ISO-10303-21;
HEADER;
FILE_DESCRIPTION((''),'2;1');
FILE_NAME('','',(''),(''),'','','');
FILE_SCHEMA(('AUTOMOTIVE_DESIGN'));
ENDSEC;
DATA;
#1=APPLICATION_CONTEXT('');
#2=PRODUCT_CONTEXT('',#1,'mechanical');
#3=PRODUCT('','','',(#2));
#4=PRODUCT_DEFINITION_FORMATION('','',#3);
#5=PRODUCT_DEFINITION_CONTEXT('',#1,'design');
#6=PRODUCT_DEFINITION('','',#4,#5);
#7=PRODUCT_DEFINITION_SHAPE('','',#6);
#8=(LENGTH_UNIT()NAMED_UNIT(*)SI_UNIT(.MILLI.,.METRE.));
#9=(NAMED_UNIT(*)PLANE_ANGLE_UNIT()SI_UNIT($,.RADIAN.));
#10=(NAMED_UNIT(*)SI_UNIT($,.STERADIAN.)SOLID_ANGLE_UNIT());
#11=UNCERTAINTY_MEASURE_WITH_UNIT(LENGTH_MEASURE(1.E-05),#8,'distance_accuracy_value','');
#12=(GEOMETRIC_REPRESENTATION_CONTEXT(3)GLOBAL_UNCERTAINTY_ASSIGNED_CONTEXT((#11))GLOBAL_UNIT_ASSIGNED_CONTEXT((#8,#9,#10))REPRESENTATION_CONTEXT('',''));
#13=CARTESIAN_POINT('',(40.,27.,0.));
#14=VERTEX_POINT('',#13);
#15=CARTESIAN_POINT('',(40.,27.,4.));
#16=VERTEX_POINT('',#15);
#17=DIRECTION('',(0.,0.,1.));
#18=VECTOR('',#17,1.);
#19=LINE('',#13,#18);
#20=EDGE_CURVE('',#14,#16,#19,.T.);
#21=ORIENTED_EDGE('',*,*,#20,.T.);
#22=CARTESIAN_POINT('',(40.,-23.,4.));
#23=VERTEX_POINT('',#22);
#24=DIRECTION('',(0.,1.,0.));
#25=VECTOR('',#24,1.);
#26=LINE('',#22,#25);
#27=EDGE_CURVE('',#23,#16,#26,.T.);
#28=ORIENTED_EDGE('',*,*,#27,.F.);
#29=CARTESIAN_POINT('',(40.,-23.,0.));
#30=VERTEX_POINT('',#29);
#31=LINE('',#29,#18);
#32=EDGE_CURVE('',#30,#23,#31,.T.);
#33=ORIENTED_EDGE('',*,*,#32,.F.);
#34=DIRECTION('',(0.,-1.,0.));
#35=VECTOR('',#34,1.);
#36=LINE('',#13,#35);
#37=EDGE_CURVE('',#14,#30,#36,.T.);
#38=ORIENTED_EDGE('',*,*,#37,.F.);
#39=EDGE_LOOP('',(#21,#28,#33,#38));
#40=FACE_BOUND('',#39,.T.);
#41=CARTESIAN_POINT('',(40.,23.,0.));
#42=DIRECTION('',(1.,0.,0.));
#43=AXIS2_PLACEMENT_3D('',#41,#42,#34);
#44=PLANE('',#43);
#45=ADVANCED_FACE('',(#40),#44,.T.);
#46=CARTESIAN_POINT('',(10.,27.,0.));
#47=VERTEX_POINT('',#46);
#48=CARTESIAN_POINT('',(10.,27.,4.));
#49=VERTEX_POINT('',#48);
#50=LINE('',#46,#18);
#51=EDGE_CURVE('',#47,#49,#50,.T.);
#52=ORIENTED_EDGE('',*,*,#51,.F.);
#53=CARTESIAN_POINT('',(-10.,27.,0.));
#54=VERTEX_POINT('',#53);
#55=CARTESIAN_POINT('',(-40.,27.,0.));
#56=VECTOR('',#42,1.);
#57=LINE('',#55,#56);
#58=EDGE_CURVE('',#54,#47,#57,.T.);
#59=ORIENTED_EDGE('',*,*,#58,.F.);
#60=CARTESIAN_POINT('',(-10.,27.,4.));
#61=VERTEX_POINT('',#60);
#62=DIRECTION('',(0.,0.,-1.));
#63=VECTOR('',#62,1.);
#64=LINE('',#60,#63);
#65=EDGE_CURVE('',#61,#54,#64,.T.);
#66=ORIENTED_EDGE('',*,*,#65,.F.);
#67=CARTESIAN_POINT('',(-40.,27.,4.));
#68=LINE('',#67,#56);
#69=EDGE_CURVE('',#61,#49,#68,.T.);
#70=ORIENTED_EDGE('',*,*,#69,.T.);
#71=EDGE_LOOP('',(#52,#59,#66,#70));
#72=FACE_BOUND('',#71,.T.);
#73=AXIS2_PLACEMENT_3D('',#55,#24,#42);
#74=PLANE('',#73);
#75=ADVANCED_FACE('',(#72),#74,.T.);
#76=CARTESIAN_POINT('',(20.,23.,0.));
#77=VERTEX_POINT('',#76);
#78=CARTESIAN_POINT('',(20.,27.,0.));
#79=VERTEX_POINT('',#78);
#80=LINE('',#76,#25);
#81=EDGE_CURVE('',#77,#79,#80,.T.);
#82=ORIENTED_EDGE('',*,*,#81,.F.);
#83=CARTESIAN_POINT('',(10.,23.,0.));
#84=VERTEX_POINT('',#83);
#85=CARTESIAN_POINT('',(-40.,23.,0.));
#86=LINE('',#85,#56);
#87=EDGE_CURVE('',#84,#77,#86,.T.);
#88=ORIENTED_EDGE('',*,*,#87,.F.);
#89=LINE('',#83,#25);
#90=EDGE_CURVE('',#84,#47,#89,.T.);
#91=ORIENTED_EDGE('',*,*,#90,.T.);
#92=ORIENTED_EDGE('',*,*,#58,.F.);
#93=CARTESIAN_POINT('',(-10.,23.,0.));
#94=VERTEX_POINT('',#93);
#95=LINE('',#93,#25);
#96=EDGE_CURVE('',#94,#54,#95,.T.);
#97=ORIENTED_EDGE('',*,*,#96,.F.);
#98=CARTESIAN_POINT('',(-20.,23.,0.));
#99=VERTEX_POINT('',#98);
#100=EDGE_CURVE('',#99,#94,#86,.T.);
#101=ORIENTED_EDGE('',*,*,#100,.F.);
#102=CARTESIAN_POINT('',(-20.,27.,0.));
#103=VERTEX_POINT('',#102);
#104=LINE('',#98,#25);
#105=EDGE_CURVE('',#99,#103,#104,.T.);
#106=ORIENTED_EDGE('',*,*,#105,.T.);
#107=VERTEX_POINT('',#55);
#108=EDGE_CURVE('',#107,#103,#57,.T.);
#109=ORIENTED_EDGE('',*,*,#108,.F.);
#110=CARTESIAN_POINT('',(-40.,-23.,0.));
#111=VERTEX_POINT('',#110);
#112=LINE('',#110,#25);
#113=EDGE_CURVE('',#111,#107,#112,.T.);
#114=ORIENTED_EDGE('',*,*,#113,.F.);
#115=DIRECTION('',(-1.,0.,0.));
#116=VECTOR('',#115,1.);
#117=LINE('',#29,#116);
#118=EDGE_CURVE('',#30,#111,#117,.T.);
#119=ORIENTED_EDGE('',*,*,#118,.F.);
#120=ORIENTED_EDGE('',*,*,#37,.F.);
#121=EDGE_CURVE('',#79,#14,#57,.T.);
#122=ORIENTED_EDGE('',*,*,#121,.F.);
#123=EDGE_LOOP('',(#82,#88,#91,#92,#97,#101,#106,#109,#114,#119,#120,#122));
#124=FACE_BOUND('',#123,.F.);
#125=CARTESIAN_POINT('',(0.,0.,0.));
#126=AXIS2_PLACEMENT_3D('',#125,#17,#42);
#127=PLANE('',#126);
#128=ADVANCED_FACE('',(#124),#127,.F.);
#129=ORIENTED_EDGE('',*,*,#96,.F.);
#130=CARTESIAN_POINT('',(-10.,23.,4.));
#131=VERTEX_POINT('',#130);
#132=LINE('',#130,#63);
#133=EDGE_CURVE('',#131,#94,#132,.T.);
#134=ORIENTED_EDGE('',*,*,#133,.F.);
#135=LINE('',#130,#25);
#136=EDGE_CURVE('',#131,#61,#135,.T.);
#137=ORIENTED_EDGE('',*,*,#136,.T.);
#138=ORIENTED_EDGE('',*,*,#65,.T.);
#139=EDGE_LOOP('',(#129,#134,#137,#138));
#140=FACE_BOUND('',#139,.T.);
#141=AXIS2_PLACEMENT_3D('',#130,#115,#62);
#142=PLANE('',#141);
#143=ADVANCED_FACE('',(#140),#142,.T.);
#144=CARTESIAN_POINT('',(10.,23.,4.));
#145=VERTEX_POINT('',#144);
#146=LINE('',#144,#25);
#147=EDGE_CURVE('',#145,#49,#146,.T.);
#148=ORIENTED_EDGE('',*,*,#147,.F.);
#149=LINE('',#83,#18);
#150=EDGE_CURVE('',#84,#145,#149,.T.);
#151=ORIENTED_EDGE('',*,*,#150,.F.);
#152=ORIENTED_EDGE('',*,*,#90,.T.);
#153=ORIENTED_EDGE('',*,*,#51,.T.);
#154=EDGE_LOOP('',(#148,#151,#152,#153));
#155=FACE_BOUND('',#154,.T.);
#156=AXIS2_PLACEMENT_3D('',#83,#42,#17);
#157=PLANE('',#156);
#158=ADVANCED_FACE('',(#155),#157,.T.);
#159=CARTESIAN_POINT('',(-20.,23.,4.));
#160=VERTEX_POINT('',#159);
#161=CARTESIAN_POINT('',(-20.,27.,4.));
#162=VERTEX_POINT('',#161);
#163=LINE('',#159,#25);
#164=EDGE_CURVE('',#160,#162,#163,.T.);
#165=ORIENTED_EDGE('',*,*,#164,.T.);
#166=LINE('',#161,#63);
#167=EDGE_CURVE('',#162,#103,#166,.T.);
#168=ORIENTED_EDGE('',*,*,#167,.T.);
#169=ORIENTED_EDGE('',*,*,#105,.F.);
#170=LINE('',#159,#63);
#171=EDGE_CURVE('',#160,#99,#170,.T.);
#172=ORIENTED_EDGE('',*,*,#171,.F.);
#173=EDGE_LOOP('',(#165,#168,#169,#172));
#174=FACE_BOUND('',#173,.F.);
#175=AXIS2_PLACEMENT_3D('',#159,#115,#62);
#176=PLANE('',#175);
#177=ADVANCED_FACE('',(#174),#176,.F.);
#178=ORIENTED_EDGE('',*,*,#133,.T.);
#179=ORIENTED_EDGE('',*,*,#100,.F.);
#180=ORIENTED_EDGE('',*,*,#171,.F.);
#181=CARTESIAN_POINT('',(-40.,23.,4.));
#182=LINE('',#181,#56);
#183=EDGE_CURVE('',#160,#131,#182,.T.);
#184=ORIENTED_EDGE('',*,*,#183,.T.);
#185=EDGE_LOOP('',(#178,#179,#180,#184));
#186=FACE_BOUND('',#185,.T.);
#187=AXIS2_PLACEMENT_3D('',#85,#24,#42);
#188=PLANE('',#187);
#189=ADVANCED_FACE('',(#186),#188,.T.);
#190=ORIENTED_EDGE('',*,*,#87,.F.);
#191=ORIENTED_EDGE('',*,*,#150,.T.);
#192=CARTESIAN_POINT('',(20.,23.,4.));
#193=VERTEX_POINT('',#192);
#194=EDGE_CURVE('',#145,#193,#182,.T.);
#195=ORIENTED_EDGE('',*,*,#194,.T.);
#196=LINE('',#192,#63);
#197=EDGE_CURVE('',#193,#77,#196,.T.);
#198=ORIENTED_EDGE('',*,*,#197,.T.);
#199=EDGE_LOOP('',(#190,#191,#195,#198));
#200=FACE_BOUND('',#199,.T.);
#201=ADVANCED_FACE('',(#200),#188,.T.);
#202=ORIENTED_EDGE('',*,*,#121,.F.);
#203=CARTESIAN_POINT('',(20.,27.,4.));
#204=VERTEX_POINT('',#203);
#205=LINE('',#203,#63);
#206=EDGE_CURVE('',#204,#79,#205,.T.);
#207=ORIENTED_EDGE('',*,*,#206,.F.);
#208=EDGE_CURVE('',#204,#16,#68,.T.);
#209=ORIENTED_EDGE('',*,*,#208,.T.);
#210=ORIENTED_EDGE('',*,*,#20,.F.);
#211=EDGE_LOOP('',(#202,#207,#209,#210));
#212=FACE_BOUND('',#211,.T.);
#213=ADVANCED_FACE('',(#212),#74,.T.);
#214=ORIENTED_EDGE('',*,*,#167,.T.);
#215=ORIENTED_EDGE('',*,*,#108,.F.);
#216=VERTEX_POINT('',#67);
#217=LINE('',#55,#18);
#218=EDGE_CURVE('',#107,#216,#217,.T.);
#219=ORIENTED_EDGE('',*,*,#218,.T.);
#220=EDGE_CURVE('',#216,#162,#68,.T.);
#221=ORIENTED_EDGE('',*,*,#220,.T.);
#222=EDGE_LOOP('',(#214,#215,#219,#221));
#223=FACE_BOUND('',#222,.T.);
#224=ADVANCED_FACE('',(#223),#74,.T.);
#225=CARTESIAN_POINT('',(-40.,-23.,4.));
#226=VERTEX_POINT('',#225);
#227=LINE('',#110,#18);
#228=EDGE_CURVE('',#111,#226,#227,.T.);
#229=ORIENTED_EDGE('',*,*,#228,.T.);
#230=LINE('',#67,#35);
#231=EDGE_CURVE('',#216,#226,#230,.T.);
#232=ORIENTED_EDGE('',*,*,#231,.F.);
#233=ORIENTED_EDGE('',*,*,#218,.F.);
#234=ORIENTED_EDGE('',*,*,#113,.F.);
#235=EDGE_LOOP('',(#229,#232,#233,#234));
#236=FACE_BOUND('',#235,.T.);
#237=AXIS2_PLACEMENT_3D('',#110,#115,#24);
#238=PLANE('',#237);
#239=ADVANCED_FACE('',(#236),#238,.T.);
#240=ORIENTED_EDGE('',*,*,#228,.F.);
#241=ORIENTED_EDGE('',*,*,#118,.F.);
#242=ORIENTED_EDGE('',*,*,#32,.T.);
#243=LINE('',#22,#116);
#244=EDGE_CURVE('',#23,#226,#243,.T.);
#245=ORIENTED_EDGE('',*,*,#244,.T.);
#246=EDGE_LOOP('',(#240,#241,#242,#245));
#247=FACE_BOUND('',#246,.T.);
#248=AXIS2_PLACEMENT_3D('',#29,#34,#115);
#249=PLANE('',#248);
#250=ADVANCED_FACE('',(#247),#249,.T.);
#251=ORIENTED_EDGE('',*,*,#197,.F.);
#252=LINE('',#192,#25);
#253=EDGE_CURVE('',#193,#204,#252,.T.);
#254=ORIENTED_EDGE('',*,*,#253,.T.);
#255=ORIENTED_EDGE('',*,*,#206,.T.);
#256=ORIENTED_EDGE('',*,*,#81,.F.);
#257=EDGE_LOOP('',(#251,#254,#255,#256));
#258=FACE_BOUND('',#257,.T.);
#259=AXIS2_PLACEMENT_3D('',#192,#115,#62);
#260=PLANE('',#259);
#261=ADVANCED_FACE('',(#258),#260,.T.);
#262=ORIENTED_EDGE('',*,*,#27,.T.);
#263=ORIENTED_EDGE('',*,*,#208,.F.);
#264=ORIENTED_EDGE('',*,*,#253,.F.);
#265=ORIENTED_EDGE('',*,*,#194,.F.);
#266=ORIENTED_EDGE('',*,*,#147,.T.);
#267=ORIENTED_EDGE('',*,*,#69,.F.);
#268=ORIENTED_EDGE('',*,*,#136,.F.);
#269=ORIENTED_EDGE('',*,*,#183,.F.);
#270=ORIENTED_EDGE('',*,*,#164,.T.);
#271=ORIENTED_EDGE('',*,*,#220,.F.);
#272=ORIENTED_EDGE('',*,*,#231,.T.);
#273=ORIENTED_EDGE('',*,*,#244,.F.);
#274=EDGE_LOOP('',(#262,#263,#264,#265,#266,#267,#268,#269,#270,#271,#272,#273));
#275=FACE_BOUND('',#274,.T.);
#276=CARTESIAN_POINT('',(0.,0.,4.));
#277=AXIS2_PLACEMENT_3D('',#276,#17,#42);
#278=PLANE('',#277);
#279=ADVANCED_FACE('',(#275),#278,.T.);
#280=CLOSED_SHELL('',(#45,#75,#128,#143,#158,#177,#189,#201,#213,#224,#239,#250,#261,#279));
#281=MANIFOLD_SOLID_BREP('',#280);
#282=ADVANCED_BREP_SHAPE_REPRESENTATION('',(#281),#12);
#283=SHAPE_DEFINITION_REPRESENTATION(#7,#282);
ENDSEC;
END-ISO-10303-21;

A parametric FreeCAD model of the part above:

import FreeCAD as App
import Part
import Sketcher

doc = App.newDocument("Part")
body = doc.addObject("PartDesign::Body", "Body")

# Sketch on XY plane
sketch1 = body.newObject("Sketcher::SketchObject", "Sketch")
sketch1.AttachmentSupport = (doc.getObject("XY_Plane"), [""])
sketch1.MapMode = "FlatFace"
sketch1.addGeometry(Part.LineSegment(App.Vector(40, 23, 0), App.Vector(-40, 23, 0)), False)
sketch1.addGeometry(Part.LineSegment(App.Vector(-40, 23, 0), App.Vector(-40, -23, 0)), False)
sketch1.addGeometry(Part.LineSegment(App.Vector(-40, -23, 0), App.Vector(40, -23, 0)), False)
sketch1.addGeometry(Part.LineSegment(App.Vector(40, -23, 0), App.Vector(40, 23, 0)), False)
sketch1.addConstraint(Sketcher.Constraint("Coincident", 0, 2, 1, 1))
sketch1.addConstraint(Sketcher.Constraint("Coincident", 1, 2, 2, 1))
sketch1.addConstraint(Sketcher.Constraint("Coincident", 2, 2, 3, 1))
sketch1.addConstraint(Sketcher.Constraint("Coincident", 3, 2, 0, 1))
sketch1.addConstraint(Sketcher.Constraint("Horizontal", 0))
sketch1.addConstraint(Sketcher.Constraint("Vertical", 1))
sketch1.addConstraint(Sketcher.Constraint("Horizontal", 2))
sketch1.addConstraint(Sketcher.Constraint("Vertical", 3))
sketch1.addConstraint(Sketcher.Constraint("Symmetric", 0, 2, 2, 2, -1, 1))
sketch1.addConstraint(Sketcher.Constraint("DistanceX", 0, 2, 0, 1, 80.0))
sketch1.addConstraint(Sketcher.Constraint("DistanceY", 1, 2, 1, 1, 46.0))
pad1 = body.newObject("PartDesign::Pad", "Pad")
pad1.Profile = sketch1
pad1.Length = 4

# Sketch on XZ plane
sketch2 = body.newObject("Sketcher::SketchObject", "Sketch001")
sketch2.AttachmentSupport = (doc.getObject("XZ_Plane"), [""])
sketch2.MapMode = "FlatFace"
sketch2.AttachmentOffset = App.Placement(App.Vector(0, 0, -23), App.Rotation())
sketch2.addGeometry(Part.LineSegment(App.Vector(-40, 0, 0), App.Vector(-40, 4, 0)), False)
sketch2.addGeometry(Part.LineSegment(App.Vector(-40, 4, 0), App.Vector(-20, 4, 0)), False)
sketch2.addGeometry(Part.LineSegment(App.Vector(-20, 4, 0), App.Vector(-20, 0, 0)), False)
sketch2.addGeometry(Part.LineSegment(App.Vector(-20, 0, 0), App.Vector(-40, 0, 0)), False)
sketch2.addGeometry(Part.LineSegment(App.Vector(-10, 0, 0), App.Vector(-10, 4, 0)), False)
sketch2.addGeometry(Part.LineSegment(App.Vector(-10, 4, 0), App.Vector(10, 4, 0)), False)
sketch2.addGeometry(Part.LineSegment(App.Vector(10, 4, 0), App.Vector(10, 0, 0)), False)
sketch2.addGeometry(Part.LineSegment(App.Vector(10, 0, 0), App.Vector(-10, 0, 0)), False)
sketch2.addGeometry(Part.LineSegment(App.Vector(20, 0, 0), App.Vector(20, 4, 0)), False)
sketch2.addGeometry(Part.LineSegment(App.Vector(20, 4, 0), App.Vector(40, 4, 0)), False)
sketch2.addGeometry(Part.LineSegment(App.Vector(40, 4, 0), App.Vector(40, 0, 0)), False)
sketch2.addGeometry(Part.LineSegment(App.Vector(40, 0, 0), App.Vector(20, 0, 0)), False)
sketch2.addConstraint(Sketcher.Constraint("Coincident", 0, 2, 1, 1))
sketch2.addConstraint(Sketcher.Constraint("Coincident", 1, 2, 2, 1))
sketch2.addConstraint(Sketcher.Constraint("Coincident", 2, 2, 3, 1))
sketch2.addConstraint(Sketcher.Constraint("Coincident", 3, 2, 0, 1))
sketch2.addConstraint(Sketcher.Constraint("Coincident", 4, 2, 5, 1))
sketch2.addConstraint(Sketcher.Constraint("Coincident", 5, 2, 6, 1))
sketch2.addConstraint(Sketcher.Constraint("Coincident", 6, 2, 7, 1))
sketch2.addConstraint(Sketcher.Constraint("Coincident", 7, 2, 4, 1))
sketch2.addConstraint(Sketcher.Constraint("Coincident", 8, 2, 9, 1))
sketch2.addConstraint(Sketcher.Constraint("Coincident", 9, 2, 10, 1))
sketch2.addConstraint(Sketcher.Constraint("Coincident", 10, 2, 11, 1))
sketch2.addConstraint(Sketcher.Constraint("Coincident", 11, 2, 8, 1))
sketch2.addConstraint(Sketcher.Constraint("Vertical", 0))
sketch2.addConstraint(Sketcher.Constraint("Horizontal", 1))
sketch2.addConstraint(Sketcher.Constraint("Vertical", 2))
sketch2.addConstraint(Sketcher.Constraint("Horizontal", 3))
sketch2.addConstraint(Sketcher.Constraint("Vertical", 4))
sketch2.addConstraint(Sketcher.Constraint("Horizontal", 5))
sketch2.addConstraint(Sketcher.Constraint("Vertical", 6))
sketch2.addConstraint(Sketcher.Constraint("Horizontal", 7))
sketch2.addConstraint(Sketcher.Constraint("Vertical", 8))
sketch2.addConstraint(Sketcher.Constraint("Horizontal", 9))
sketch2.addConstraint(Sketcher.Constraint("Vertical", 10))
sketch2.addConstraint(Sketcher.Constraint("Horizontal", 11))
sketch2.addConstraint(Sketcher.Constraint("Symmetric", 6, 2, 7, 2, -1, 1))
sketch2.addConstraint(Sketcher.Constraint("Symmetric", 3, 2, 10, 2, -1, 1))
sketch2.addConstraint(Sketcher.Constraint("Symmetric", 1, 2, 8, 2, -2))
sketch2.addConstraint(Sketcher.Constraint("PointOnObject", 2, 2, -1))
sketch2.addConstraint(Sketcher.Constraint("Horizontal", 1, 2, 4, 2))
sketch2.addConstraint(Sketcher.Constraint("Equal", 3, 5))
sketch2.addConstraint(Sketcher.Constraint("DistanceX", 1, 1, 1, 2, 20.0))
sketch2.addConstraint(Sketcher.Constraint("DistanceX", 1, 2, -1, 1, 20.0))
sketch2.addConstraint(Sketcher.Constraint("DistanceY", 0, 1, 0, 2, 4.0))
pad2 = body.newObject("PartDesign::Pad", "Pad001")
pad2.Profile = sketch2
pad2.Length = 4
pad2.Reversed = True

doc.recompute()
